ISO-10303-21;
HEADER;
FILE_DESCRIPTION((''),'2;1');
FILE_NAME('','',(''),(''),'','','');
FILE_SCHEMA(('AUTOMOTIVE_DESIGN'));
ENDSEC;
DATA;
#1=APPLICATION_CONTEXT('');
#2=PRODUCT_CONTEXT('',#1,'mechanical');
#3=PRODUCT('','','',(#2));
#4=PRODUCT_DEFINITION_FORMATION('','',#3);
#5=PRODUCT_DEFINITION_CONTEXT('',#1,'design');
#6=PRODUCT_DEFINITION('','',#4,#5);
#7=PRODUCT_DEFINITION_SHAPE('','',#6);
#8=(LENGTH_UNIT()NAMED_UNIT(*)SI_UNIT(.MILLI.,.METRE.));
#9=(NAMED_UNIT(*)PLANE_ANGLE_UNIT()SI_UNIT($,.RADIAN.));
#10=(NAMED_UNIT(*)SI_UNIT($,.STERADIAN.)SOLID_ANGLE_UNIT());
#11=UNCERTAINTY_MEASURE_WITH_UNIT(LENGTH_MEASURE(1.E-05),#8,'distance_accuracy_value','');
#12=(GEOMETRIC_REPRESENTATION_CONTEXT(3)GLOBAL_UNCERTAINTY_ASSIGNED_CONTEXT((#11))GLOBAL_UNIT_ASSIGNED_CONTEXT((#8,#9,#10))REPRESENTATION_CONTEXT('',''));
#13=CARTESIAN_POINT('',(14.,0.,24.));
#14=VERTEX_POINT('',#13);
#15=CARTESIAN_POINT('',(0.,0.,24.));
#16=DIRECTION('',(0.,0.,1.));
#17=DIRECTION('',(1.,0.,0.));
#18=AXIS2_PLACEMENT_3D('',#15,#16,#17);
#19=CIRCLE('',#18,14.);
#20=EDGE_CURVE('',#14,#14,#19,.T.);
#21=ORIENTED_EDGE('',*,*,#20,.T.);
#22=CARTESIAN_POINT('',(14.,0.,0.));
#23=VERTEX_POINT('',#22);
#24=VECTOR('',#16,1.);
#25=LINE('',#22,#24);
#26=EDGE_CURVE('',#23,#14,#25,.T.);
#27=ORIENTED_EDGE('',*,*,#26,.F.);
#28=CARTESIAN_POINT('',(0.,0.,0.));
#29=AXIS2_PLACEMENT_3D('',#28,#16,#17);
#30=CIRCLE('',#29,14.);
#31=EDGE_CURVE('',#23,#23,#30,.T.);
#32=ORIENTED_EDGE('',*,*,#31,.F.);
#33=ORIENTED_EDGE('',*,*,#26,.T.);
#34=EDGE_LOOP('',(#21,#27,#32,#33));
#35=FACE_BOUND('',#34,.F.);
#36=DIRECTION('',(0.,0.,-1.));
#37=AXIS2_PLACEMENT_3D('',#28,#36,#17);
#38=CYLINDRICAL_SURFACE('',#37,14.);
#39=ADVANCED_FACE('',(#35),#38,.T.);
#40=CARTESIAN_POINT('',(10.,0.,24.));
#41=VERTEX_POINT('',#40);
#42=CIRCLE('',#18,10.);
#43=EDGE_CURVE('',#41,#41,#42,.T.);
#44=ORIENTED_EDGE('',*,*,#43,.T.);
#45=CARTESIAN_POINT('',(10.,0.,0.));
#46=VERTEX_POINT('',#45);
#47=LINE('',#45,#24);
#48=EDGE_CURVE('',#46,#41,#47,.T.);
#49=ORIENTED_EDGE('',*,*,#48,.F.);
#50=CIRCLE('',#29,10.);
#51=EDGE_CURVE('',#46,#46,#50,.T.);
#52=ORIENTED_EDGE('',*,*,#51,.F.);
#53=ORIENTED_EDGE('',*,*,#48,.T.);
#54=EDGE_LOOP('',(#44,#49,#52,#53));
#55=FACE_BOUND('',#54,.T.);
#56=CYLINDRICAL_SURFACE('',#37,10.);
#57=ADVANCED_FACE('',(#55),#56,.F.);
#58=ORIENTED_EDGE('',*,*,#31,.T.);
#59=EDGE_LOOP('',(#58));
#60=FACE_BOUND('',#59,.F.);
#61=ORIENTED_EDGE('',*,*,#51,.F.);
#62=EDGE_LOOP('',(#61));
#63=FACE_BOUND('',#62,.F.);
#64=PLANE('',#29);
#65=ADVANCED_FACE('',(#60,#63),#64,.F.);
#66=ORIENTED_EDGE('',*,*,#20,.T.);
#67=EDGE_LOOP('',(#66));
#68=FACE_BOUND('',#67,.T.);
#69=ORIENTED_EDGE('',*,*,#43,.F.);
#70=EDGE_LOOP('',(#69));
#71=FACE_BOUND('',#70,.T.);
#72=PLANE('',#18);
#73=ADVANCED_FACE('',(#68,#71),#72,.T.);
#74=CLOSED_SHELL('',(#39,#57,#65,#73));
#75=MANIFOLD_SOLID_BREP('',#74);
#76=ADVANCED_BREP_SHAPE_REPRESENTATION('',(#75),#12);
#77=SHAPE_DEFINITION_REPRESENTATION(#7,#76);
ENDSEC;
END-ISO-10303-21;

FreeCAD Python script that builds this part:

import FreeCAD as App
import Part
import Sketcher
Q = App.Units.Quantity

doc = App.newDocument("Part")
body = doc.addObject("PartDesign::Body", "Body")

sketch1 = body.newObject("Sketcher::SketchObject", "Sketch")
sketch1.AttachmentSupport = (doc.getObject("XY_Plane"), [""])
sketch1.MapMode = "FlatFace"
sketch1.addGeometry([
    Part.Circle(App.Vector(0, 0, 0), App.Vector(0, 0, 1), 14),
    Part.Circle(App.Vector(0, 0, 0), App.Vector(0, 0, 1), 10),
], False)
sketch1.addConstraint([
    Sketcher.Constraint("Coincident", 0, 3, -1, 1),
    Sketcher.Constraint("Coincident", 1, 3, -1, 1),
    Sketcher.Constraint("Diameter", 0, Q("28 mm")),
    Sketcher.Constraint("Diameter", 1, Q("20 mm")),
])
pad1 = body.newObject("PartDesign::Pad", "Pad")
pad1.Profile = sketch1
pad1.Length = 24

doc.recompute()
